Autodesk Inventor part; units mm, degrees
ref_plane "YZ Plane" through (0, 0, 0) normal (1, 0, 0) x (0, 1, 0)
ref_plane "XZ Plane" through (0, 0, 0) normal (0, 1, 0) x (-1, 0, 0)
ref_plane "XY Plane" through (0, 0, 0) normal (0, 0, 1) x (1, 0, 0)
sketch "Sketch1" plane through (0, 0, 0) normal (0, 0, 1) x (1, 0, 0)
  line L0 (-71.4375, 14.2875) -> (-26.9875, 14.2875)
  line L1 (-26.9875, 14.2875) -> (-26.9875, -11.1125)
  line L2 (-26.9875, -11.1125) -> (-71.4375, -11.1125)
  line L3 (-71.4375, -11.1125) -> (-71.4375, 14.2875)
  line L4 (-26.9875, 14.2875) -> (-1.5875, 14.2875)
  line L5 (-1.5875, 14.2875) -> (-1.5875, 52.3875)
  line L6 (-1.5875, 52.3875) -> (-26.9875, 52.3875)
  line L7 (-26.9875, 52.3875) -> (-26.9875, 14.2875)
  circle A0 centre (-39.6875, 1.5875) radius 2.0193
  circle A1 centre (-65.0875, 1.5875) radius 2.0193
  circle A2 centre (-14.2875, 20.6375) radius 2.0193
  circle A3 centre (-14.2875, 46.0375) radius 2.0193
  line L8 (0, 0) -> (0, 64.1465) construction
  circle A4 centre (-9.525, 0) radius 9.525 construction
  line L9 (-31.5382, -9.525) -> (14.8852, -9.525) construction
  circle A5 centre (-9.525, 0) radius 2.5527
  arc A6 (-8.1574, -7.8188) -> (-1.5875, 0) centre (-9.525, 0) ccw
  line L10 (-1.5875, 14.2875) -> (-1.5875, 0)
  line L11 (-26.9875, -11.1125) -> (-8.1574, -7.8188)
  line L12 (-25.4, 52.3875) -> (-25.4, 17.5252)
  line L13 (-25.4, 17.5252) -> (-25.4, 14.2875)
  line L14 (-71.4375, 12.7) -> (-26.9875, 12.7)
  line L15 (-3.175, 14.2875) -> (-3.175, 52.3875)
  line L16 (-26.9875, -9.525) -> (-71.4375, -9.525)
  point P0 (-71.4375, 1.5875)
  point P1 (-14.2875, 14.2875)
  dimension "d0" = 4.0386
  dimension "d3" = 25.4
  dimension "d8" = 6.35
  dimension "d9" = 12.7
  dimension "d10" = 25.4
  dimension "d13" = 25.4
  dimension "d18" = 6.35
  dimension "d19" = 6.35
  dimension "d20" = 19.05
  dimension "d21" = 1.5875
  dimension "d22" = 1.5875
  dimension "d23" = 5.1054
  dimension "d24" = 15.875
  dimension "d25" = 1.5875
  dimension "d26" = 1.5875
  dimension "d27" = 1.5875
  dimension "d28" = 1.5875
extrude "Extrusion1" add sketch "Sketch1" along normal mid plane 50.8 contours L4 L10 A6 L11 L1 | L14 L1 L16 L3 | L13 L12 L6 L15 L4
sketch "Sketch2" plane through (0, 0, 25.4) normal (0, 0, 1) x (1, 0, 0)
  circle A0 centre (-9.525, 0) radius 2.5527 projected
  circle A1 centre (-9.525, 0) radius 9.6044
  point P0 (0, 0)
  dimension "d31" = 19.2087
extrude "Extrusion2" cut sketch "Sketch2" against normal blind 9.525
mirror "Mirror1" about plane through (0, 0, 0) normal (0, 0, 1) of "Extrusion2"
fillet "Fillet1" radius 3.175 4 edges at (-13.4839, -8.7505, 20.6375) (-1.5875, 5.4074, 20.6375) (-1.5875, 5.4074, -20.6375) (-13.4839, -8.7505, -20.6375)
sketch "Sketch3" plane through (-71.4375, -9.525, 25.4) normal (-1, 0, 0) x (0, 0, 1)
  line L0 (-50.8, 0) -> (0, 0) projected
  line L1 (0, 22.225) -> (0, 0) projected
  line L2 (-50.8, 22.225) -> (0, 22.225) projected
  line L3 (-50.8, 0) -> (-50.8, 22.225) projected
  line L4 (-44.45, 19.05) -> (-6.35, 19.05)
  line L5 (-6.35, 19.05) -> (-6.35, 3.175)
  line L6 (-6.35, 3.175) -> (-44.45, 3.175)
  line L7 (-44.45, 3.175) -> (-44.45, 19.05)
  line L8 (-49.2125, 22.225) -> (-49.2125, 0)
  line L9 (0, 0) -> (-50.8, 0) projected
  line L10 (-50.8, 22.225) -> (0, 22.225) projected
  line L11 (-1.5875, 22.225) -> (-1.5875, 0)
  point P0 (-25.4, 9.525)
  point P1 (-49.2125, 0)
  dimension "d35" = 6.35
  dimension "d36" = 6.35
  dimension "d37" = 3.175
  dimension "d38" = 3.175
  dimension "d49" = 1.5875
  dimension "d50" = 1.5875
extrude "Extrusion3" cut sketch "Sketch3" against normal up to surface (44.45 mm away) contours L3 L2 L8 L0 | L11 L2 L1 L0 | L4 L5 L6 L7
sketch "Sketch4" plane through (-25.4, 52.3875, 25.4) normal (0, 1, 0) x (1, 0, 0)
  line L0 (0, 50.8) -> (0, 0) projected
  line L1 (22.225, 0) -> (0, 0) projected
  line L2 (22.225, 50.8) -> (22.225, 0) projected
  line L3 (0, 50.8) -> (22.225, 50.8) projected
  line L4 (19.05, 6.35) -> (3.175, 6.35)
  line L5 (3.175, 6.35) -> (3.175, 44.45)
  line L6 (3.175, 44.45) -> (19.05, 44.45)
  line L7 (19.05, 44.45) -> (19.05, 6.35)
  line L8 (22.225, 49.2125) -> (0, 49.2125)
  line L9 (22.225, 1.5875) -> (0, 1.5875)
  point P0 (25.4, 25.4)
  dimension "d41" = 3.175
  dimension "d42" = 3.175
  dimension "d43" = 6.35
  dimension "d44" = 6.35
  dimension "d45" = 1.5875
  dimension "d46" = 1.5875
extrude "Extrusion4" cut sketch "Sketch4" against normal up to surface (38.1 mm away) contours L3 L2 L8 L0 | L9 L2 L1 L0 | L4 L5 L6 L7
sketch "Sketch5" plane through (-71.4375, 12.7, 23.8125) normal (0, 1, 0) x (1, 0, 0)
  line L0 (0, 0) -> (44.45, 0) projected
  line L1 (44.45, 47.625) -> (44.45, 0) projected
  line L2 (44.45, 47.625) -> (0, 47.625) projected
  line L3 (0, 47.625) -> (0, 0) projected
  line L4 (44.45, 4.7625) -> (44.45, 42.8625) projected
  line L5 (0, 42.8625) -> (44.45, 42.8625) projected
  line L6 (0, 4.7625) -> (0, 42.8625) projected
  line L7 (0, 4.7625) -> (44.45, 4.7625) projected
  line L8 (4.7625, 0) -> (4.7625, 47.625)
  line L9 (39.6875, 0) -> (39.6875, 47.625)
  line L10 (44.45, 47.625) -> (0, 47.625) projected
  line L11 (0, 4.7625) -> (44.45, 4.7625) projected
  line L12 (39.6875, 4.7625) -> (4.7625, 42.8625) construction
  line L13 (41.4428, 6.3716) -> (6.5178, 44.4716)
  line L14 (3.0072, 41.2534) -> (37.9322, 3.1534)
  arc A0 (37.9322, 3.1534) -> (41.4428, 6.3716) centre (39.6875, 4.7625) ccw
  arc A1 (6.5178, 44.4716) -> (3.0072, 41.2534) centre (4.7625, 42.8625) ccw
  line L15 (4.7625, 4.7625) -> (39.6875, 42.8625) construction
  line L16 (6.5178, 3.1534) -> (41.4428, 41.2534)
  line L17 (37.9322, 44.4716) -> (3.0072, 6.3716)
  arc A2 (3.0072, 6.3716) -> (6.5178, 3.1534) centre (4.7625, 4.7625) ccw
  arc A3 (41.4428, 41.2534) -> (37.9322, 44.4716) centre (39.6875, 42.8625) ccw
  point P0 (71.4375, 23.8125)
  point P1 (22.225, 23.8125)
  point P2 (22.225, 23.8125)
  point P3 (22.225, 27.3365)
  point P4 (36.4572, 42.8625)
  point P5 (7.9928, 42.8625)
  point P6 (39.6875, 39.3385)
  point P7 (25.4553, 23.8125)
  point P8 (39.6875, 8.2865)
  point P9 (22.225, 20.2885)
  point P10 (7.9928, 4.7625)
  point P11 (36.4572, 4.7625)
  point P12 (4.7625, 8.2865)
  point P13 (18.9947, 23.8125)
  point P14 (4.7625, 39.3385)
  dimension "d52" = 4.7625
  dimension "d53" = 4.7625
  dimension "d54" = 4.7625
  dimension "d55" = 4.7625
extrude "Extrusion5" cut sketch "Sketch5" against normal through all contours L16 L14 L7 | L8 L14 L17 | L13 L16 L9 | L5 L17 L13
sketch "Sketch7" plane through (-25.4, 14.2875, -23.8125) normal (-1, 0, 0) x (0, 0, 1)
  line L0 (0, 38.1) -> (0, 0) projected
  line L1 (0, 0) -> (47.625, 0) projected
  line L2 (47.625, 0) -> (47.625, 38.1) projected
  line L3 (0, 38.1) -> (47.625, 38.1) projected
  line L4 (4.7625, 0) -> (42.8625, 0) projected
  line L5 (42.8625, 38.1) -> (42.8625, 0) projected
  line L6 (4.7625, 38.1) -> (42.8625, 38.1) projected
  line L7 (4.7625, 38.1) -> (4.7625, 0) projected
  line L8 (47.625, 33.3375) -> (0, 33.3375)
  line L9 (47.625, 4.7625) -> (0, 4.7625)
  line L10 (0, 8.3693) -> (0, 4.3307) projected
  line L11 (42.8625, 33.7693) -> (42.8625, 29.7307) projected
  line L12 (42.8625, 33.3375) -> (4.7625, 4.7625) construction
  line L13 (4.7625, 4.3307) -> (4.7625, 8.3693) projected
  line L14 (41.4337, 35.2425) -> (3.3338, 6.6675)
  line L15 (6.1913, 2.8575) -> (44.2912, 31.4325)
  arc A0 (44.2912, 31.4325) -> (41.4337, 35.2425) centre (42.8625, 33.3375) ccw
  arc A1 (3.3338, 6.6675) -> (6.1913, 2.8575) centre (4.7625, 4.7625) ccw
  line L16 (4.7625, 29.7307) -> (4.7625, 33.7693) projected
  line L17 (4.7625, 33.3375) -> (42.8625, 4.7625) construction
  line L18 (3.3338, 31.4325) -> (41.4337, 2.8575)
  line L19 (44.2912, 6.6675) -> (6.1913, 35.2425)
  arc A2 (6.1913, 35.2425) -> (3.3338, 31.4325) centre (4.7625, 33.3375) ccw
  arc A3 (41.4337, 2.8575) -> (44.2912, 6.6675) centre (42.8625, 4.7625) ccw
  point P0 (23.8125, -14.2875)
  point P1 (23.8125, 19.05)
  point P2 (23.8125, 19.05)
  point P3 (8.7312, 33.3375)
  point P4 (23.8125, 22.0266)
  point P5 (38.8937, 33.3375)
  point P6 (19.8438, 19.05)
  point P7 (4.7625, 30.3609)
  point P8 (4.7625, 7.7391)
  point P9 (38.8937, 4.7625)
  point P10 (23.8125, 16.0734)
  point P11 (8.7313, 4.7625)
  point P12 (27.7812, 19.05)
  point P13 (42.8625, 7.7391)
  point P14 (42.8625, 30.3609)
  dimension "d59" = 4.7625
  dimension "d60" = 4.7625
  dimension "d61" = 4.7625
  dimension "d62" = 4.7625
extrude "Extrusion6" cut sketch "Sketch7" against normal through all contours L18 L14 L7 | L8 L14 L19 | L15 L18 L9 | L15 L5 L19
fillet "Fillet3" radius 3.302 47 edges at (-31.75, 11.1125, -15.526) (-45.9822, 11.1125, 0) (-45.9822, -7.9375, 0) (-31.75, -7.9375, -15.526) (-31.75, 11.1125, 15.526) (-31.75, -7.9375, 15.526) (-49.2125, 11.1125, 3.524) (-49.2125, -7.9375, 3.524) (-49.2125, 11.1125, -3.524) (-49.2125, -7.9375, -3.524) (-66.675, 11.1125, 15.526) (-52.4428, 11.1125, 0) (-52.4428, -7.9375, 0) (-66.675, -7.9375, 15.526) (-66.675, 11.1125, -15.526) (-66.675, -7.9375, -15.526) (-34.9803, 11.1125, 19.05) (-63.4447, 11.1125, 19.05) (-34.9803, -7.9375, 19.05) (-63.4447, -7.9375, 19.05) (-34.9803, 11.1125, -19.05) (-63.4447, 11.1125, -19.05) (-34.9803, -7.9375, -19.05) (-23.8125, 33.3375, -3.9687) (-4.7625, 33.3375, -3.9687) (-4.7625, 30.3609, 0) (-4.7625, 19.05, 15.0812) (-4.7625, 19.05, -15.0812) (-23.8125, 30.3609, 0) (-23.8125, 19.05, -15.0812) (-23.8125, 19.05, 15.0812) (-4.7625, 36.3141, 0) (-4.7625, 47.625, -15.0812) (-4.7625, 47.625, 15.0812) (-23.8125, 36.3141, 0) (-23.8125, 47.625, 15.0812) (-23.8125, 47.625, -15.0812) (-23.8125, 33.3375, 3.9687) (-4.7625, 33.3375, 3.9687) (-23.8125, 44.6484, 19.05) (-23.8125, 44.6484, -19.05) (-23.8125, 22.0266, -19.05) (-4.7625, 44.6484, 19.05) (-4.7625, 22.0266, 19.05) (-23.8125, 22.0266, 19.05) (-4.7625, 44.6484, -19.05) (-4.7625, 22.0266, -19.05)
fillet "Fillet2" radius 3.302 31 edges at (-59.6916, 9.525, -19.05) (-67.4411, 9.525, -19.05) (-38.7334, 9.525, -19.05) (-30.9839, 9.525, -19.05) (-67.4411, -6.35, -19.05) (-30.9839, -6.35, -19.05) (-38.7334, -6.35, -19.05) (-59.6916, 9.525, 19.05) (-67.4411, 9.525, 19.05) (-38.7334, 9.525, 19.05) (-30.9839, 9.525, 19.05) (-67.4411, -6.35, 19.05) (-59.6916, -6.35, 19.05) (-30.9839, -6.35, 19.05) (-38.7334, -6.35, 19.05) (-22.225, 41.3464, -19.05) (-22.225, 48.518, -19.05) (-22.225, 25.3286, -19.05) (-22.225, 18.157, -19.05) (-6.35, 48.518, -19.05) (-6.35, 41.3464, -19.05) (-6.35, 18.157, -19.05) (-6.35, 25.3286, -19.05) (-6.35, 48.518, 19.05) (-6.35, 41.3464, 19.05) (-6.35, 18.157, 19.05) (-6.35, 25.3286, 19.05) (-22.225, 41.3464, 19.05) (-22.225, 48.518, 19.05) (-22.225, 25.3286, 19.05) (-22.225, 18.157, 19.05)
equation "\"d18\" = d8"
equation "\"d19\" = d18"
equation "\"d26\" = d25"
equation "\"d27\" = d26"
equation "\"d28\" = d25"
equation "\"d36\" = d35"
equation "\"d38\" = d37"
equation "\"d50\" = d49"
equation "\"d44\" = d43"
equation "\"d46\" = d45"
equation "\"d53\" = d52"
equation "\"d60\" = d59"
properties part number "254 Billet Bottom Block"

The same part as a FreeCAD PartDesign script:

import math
import FreeCAD as App
import Part
import Sketcher

V = App.Vector
Q = App.Units.Quantity


def edges_at(feature, points):
    """Names of the edges that pass closest to the given points."""
    edges = feature.Shape.Edges
    near = lambda p: min(range(len(edges)), key=lambda i: edges[i].distToShape(Part.Vertex(*p))[0])
    return sorted({f"Edge{near(p) + 1}" for p in points})

doc = App.newDocument("Part")
body = doc.addObject("PartDesign::Body", "Body")

# Sketch on XY plane
sketch1 = body.newObject("Sketcher::SketchObject", "Sketch")
sketch1.AttachmentSupport = (doc.getObject("XY_Plane"), [""])
sketch1.MapMode = "FlatFace"
sketch1.addGeometry(Part.LineSegment(V(-25.4, 14.3, 0), V(-27, 14.3, 0)), False)
sketch1.addGeometry(Part.LineSegment(V(-27, 14.3, 0), V(-27, 12.7, 0)), False)
sketch1.addGeometry(Part.LineSegment(V(-27, 12.7, 0), V(-71.4, 12.7, 0)), False)
sketch1.addGeometry(Part.LineSegment(V(-71.4, 12.7, 0), V(-71.4, -9.5, 0)), False)
sketch1.addGeometry(Part.LineSegment(V(-71.4, -9.5, 0), V(-27, -9.5, 0)), False)
sketch1.addGeometry(Part.LineSegment(V(-27, -9.5, 0), V(-27, -11.1, 0)), False)
sketch1.addGeometry(Part.LineSegment(V(-27, -11.1, 0), V(-8.2, -7.8, 0)), False)
sketch1.addGeometry(Part.ArcOfCircle(Part.Circle(V(-9.5, 0, 0), V(0, 0, 1), 7.9), math.radians(-80), math.radians(0)), False)
sketch1.addGeometry(Part.LineSegment(V(-1.6, 0, 0), V(-1.6, 14.3, 0)), False)
sketch1.addGeometry(Part.LineSegment(V(-1.6, 14.3, 0), V(-3.2, 14.3, 0)), False)
sketch1.addGeometry(Part.LineSegment(V(-3.2, 14.3, 0), V(-3.2, 52.4, 0)), False)
sketch1.addGeometry(Part.LineSegment(V(-3.2, 52.4, 0), V(-25.4, 52.4, 0)), False)
sketch1.addGeometry(Part.LineSegment(V(-25.4, 52.4, 0), V(-25.4, 14.3, 0)), False)
sketch1.addGeometry(Part.Circle(V(-9.5, 0, 0), V(0, 0, 1), 2.6), False)
sketch1.addGeometry(Part.Circle(V(-14.3, 46, 0), V(0, 0, 1), 2), False)
sketch1.addGeometry(Part.Circle(V(-14.3, 20.6, 0), V(0, 0, 1), 2), False)
sketch1.addGeometry(Part.Circle(V(-39.7, 1.6, 0), V(0, 0, 1), 2), False)
sketch1.addGeometry(Part.Circle(V(-65.1, 1.6, 0), V(0, 0, 1), 2), False)
sketch1.addConstraint(Sketcher.Constraint("Coincident", 0, 2, 1, 1))
sketch1.addConstraint(Sketcher.Constraint("Coincident", 1, 2, 2, 1))
sketch1.addConstraint(Sketcher.Constraint("Coincident", 2, 2, 3, 1))
sketch1.addConstraint(Sketcher.Constraint("Coincident", 3, 2, 4, 1))
sketch1.addConstraint(Sketcher.Constraint("Coincident", 4, 2, 5, 1))
sketch1.addConstraint(Sketcher.Constraint("Coincident", 5, 2, 6, 1))
sketch1.addConstraint(Sketcher.Constraint("Tangent", 6, 2, 7, 1))
sketch1.addConstraint(Sketcher.Constraint("Tangent", 7, 2, 8, 1))
sketch1.addConstraint(Sketcher.Constraint("Coincident", 8, 2, 9, 1))
sketch1.addConstraint(Sketcher.Constraint("Coincident", 9, 2, 10, 1))
sketch1.addConstraint(Sketcher.Constraint("Coincident", 10, 2, 11, 1))
sketch1.addConstraint(Sketcher.Constraint("Coincident", 11, 2, 12, 1))
sketch1.addConstraint(Sketcher.Constraint("Coincident", 12, 2, 0, 1))
sketch1.addConstraint(Sketcher.Constraint("Horizontal", 0))
sketch1.addConstraint(Sketcher.Constraint("Vertical", 1))
sketch1.addConstraint(Sketcher.Constraint("Horizontal", 2))
sketch1.addConstraint(Sketcher.Constraint("Vertical", 3))
sketch1.addConstraint(Sketcher.Constraint("Horizontal", 4))
sketch1.addConstraint(Sketcher.Constraint("Vertical", 5))
sketch1.addConstraint(Sketcher.Constraint("Vertical", 8))
sketch1.addConstraint(Sketcher.Constraint("Horizontal", 9))
sketch1.addConstraint(Sketcher.Constraint("Vertical", 10))
sketch1.addConstraint(Sketcher.Constraint("Horizontal", 11))
sketch1.addConstraint(Sketcher.Constraint("Vertical", 12))
sketch1.addConstraint(Sketcher.Constraint("Coincident", 13, 3, 7, 3))
sketch1.addConstraint(Sketcher.Constraint("Equal", 14, 15))
sketch1.addConstraint(Sketcher.Constraint("Equal", 15, 16))
sketch1.addConstraint(Sketcher.Constraint("Equal", 16, 17))
sketch1.addConstraint(Sketcher.Constraint("PointOnObject", 7, 3, -1))
sketch1.addConstraint(Sketcher.Constraint("Horizontal", 16, 3, 17, 3))
sketch1.addConstraint(Sketcher.Constraint("Horizontal", 0, 2, 8, 2))
sketch1.addConstraint(Sketcher.Constraint("Vertical", 14, 3, 15, 3))
sketch1.addConstraint(Sketcher.Constraint("Vertical", 1, 2, 4, 2))
sketch1.addConstraint(Sketcher.Constraint("Equal", 0, 9))
sketch1.addConstraint(Sketcher.Constraint("Equal", 9, 1))
sketch1.addConstraint(Sketcher.Constraint("Equal", 11, 3))
sketch1.addConstraint(Sketcher.Constraint("Equal", 1, 5))
sketch1.addConstraint(Sketcher.Constraint("Diameter", 13, Q("0.201 in")))
sketch1.addConstraint(Sketcher.Constraint("Diameter", 14, Q("0.159 in")))
sketch1.addConstraint(Sketcher.Constraint("DistanceX", 11, 2, -1, 1, Q("1 in")))
sketch1.addConstraint(Sketcher.Constraint("Radius", 7, Q("0.3125 in")))
sketch1.addConstraint(Sketcher.Constraint("DistanceY", 15, 3, 14, 3, Q("1 in")))
sketch1.addConstraint(Sketcher.Constraint("DistanceX", 16, 3, 15, 3, Q("1 in")))
sketch1.addConstraint(Sketcher.Constraint("DistanceX", 17, 3, 16, 3, Q("1 in")))
sketch1.addConstraint(Sketcher.Constraint("DistanceX", 4, 2, 7, 2, Q("1 in")))
sketch1.addConstraint(Sketcher.Constraint("DistanceY", -1, 1, 1, 2, Q("0.5 in")))
sketch1.addConstraint(Sketcher.Constraint("DistanceX", 0, 2, 15, 3, Q("0.5 in")))
sketch1.addConstraint(Sketcher.Constraint("DistanceY", 16, 3, 0, 2, Q("0.5 in")))
sketch1.addConstraint(Sketcher.Constraint("DistanceX", 0, 2, 0, 1, Q("0.0625 in")))
sketch1.addConstraint(Sketcher.Constraint("DistanceY", 16, 3, 15, 3, Q("0.75 in")))
sketch1.addConstraint(Sketcher.Constraint("DistanceX", 2, 2, 17, 3, Q("0.25 in")))
sketch1.addConstraint(Sketcher.Constraint("DistanceY", 14, 3, 10, 2, Q("0.25 in")))
pad1 = body.newObject("PartDesign::Pad", "Pad")
pad1.Profile = sketch1
pad1.Length = Q("2 in")
pad1.Midplane = True

# Sketch on XY plane
sketch2 = body.newObject("Sketcher::SketchObject", "Sketch001")
sketch2.AttachmentSupport = (doc.getObject("XY_Plane"), [""])
sketch2.MapMode = "FlatFace"
sketch2.AttachmentOffset = App.Placement(V(0, 0, 1 * 25.4), App.Rotation())
sketch2.addGeometry(Part.Circle(V(-9.5, 0, 0), V(0, 0, 1), 9.6), False)
sketch2.addGeometry(Part.Circle(V(-9.5, 0, 0), V(0, 0, 1), 2.6), False)
sketch2.addConstraint(Sketcher.Constraint("Coincident", 1, 3, 0, 3))
sketch2.addConstraint(Sketcher.Constraint("PointOnObject", 0, 3, -1))
sketch2.addConstraint(Sketcher.Constraint("Diameter", 0, 19.2088))
sketch2.addConstraint(Sketcher.Constraint("Diameter", 1, Q("0.201 in")))
sketch2.addConstraint(Sketcher.Constraint("DistanceX", 0, 3, -1, 1, Q("0.375 in")))
pocket1 = body.newObject("PartDesign::Pocket", "Pocket")
pocket1.Profile = sketch2
pocket1.Length = Q("0.375 in")
doc.recompute()

mirrored = body.newObject("PartDesign::Mirrored", "Mirrored")
mirrored.Originals = [pocket1]
mirrored.MirrorPlane = (doc.getObject("XY_Plane"), [""])
body.Tip = mirrored
doc.recompute()

fillet = body.newObject("PartDesign::Fillet", "Fillet")
fillet.Base = (mirrored, edges_at(mirrored, [
    (-13.484, -8.751, 20.637),
    (-1.587, 5.407, 20.637),
    (-1.587, 5.407, -20.637),
    (-13.484, -8.751, -20.637),
]))
fillet.Radius = Q("0.125 in")

# Sketch on YZ plane
sketch3 = body.newObject("Sketcher::SketchObject", "Sketch002")
sketch3.AttachmentSupport = (doc.getObject("YZ_Plane"), [""])
sketch3.MapMode = "FlatFace"
sketch3.AttachmentOffset = App.Placement(V(0, 0, -2.8125 * 25.4), App.Rotation())
sketch3.addGeometry(Part.LineSegment(V(12.7, -25.4, 0), V(-9.5, -25.4, 0)), False)
sketch3.addGeometry(Part.LineSegment(V(-9.5, -25.4, 0), V(-9.5, -23.8, 0)), False)
sketch3.addGeometry(Part.LineSegment(V(-9.5, -23.8, 0), V(12.7, -23.8, 0)), False)
sketch3.addGeometry(Part.LineSegment(V(12.7, -23.8, 0), V(12.7, -25.4, 0)), False)
sketch3.addGeometry(Part.LineSegment(V(12.7, 23.8, 0), V(-9.5, 23.8, 0)), False)
sketch3.addGeometry(Part.LineSegment(V(-9.5, 23.8, 0), V(-9.5, 25.4, 0)), False)
sketch3.addGeometry(Part.LineSegment(V(-9.5, 25.4, 0), V(12.7, 25.4, 0)), False)
sketch3.addGeometry(Part.LineSegment(V(12.7, 25.4, 0), V(12.7, 23.8, 0)), False)
sketch3.addGeometry(Part.LineSegment(V(9.5, 19.1, 0), V(9.5, -19.1, 0)), False)
sketch3.addGeometry(Part.LineSegment(V(9.5, -19.1, 0), V(-6.3, -19.1, 0)), False)
sketch3.addGeometry(Part.LineSegment(V(-6.3, -19.1, 0), V(-6.3, 19.1, 0)), False)
sketch3.addGeometry(Part.LineSegment(V(-6.3, 19.1, 0), V(9.5, 19.1, 0)), False)
sketch3.addConstraint(Sketcher.Constraint("Coincident", 0, 2, 1, 1))
sketch3.addConstraint(Sketcher.Constraint("Coincident", 1, 2, 2, 1))
sketch3.addConstraint(Sketcher.Constraint("Coincident", 2, 2, 3, 1))
sketch3.addConstraint(Sketcher.Constraint("Coincident", 3, 2, 0, 1))
sketch3.addConstraint(Sketcher.Constraint("Coincident", 4, 2, 5, 1))
sketch3.addConstraint(Sketcher.Constraint("Coincident", 5, 2, 6, 1))
sketch3.addConstraint(Sketcher.Constraint("Coincident", 6, 2, 7, 1))
sketch3.addConstraint(Sketcher.Constraint("Coincident", 7, 2, 4, 1))
sketch3.addConstraint(Sketcher.Constraint("Coincident", 8, 2, 9, 1))
sketch3.addConstraint(Sketcher.Constraint("Coincident", 9, 2, 10, 1))
sketch3.addConstraint(Sketcher.Constraint("Coincident", 10, 2, 11, 1))
sketch3.addConstraint(Sketcher.Constraint("Coincident", 11, 2, 8, 1))
sketch3.addConstraint(Sketcher.Constraint("Horizontal", 0))
sketch3.addConstraint(Sketcher.Constraint("Vertical", 1))
sketch3.addConstraint(Sketcher.Constraint("Horizontal", 2))
sketch3.addConstraint(Sketcher.Constraint("Vertical", 3))
sketch3.addConstraint(Sketcher.Constraint("Horizontal", 4))
sketch3.addConstraint(Sketcher.Constraint("Vertical", 5))
sketch3.addConstraint(Sketcher.Constraint("Horizontal", 6))
sketch3.addConstraint(Sketcher.Constraint("Vertical", 7))
sketch3.addConstraint(Sketcher.Constraint("Vertical", 8))
sketch3.addConstraint(Sketcher.Constraint("Horizontal", 9))
sketch3.addConstraint(Sketcher.Constraint("Vertical", 10))
sketch3.addConstraint(Sketcher.Constraint("Horizontal", 11))
sketch3.addConstraint(Sketcher.Constraint("Symmetric", 1, 2, 4, 2, -1))
sketch3.addConstraint(Sketcher.Constraint("Symmetric", 3, 2, 6, 2, -1))
sketch3.addConstraint(Sketcher.Constraint("DistanceY", 1, 1, 1, 2, Q("0.0625 in")))
sketch3.addConstraint(Sketcher.Constraint("DistanceX", 9, 2, -1, 1, Q("0.25 in")))
sketch3.addConstraint(Sketcher.Constraint("DistanceY", 3, 2, 8, 2, Q("0.25 in")))
sketch3.addConstraint(Sketcher.Constraint("DistanceY", 10, 2, 5, 2, Q("0.25 in")))
sketch3.addConstraint(Sketcher.Constraint("DistanceY", 8, 2, 8, 1, Q("1.5 in")))
sketch3.addConstraint(Sketcher.Constraint("DistanceX", 8, 2, 2, 2, Q("0.125 in")))
sketch3.addConstraint(Sketcher.Constraint("DistanceX", 1, 2, 9, 2, Q("0.125 in")))
sketch3.addConstraint(Sketcher.Constraint("DistanceX", -1, 1, 2, 2, Q("0.5 in")))
pocket2 = body.newObject("PartDesign::Pocket", "Pocket001")
pocket2.Profile = sketch3
pocket2.Length = Q("1.75 in")
pocket2.Reversed = True

# Sketch on XZ plane
sketch4 = body.newObject("Sketcher::SketchObject", "Sketch003")
sketch4.AttachmentSupport = (doc.getObject("XZ_Plane"), [""])
sketch4.MapMode = "FlatFace"
sketch4.AttachmentOffset = App.Placement(V(0, 0, -2.0625 * 25.4), App.Rotation())
sketch4.addGeometry(Part.LineSegment(V(-3.2, -25.4, 0), V(-25.4, -25.4, 0)), False)
sketch4.addGeometry(Part.LineSegment(V(-25.4, -25.4, 0), V(-25.4, -23.8, 0)), False)
sketch4.addGeometry(Part.LineSegment(V(-25.4, -23.8, 0), V(-3.2, -23.8, 0)), False)
sketch4.addGeometry(Part.LineSegment(V(-3.2, -23.8, 0), V(-3.2, -25.4, 0)), False)
sketch4.addGeometry(Part.LineSegment(V(-3.2, 23.8, 0), V(-25.4, 23.8, 0)), False)
sketch4.addGeometry(Part.LineSegment(V(-25.4, 23.8, 0), V(-25.4, 25.4, 0)), False)
sketch4.addGeometry(Part.LineSegment(V(-25.4, 25.4, 0), V(-3.2, 25.4, 0)), False)
sketch4.addGeometry(Part.LineSegment(V(-3.2, 25.4, 0), V(-3.2, 23.8, 0)), False)
sketch4.addGeometry(Part.LineSegment(V(-22.2, 19.1, 0), V(-6.3, 19.1, 0)), False)
sketch4.addGeometry(Part.LineSegment(V(-6.3, 19.1, 0), V(-6.3, -19.1, 0)), False)
sketch4.addGeometry(Part.LineSegment(V(-6.3, -19.1, 0), V(-22.2, -19.1, 0)), False)
sketch4.addGeometry(Part.LineSegment(V(-22.2, -19.1, 0), V(-22.2, 19.1, 0)), False)
sketch4.addConstraint(Sketcher.Constraint("Coincident", 0, 2, 1, 1))
sketch4.addConstraint(Sketcher.Constraint("Coincident", 1, 2, 2, 1))
sketch4.addConstraint(Sketcher.Constraint("Coincident", 2, 2, 3, 1))
sketch4.addConstraint(Sketcher.Constraint("Coincident", 3, 2, 0, 1))
sketch4.addConstraint(Sketcher.Constraint("Coincident", 4, 2, 5, 1))
sketch4.addConstraint(Sketcher.Constraint("Coincident", 5, 2, 6, 1))
sketch4.addConstraint(Sketcher.Constraint("Coincident", 6, 2, 7, 1))
sketch4.addConstraint(Sketcher.Constraint("Coincident", 7, 2, 4, 1))
sketch4.addConstraint(Sketcher.Constraint("Coincident", 8, 2, 9, 1))
sketch4.addConstraint(Sketcher.Constraint("Coincident", 9, 2, 10, 1))
sketch4.addConstraint(Sketcher.Constraint("Coincident", 10, 2, 11, 1))
sketch4.addConstraint(Sketcher.Constraint("Coincident", 11, 2, 8, 1))
sketch4.addConstraint(Sketcher.Constraint("Horizontal", 0))
sketch4.addConstraint(Sketcher.Constraint("Vertical", 1))
sketch4.addConstraint(Sketcher.Constraint("Horizontal", 2))
sketch4.addConstraint(Sketcher.Constraint("Vertical", 3))
sketch4.addConstraint(Sketcher.Constraint("Horizontal", 4))
sketch4.addConstraint(Sketcher.Constraint("Vertical", 5))
sketch4.addConstraint(Sketcher.Constraint("Horizontal", 6))
sketch4.addConstraint(Sketcher.Constraint("Vertical", 7))
sketch4.addConstraint(Sketcher.Constraint("Horizontal", 8))
sketch4.addConstraint(Sketcher.Constraint("Vertical", 9))
sketch4.addConstraint(Sketcher.Constraint("Horizontal", 10))
sketch4.addConstraint(Sketcher.Constraint("Vertical", 11))
sketch4.addConstraint(Sketcher.Constraint("Symmetric", 1, 2, 4, 2, -1))
sketch4.addConstraint(Sketcher.Constraint("Symmetric", 3, 2, 6, 2, -1))
sketch4.addConstraint(Sketcher.Constraint("DistanceY", 1, 1, 1, 2, Q("0.0625 in")))
sketch4.addConstraint(Sketcher.Constraint("DistanceX", 8, 2, -1, 1, Q("0.25 in")))
sketch4.addConstraint(Sketcher.Constraint("DistanceY", 8, 2, 6, 2, Q("0.25 in")))
sketch4.addConstraint(Sketcher.Constraint("DistanceY", 3, 2, 9, 2, Q("0.25 in")))
sketch4.addConstraint(Sketcher.Constraint("DistanceY", 9, 2, 9, 1, Q("1.5 in")))
sketch4.addConstraint(Sketcher.Constraint("DistanceX", 2, 2, -1, 1, Q("0.125 in")))
sketch4.addConstraint(Sketcher.Constraint("DistanceX", 0, 2, -1, 1, Q("1 in")))
sketch4.addConstraint(Sketcher.Constraint("DistanceX", 1, 2, 10, 2, Q("0.125 in")))
pocket3 = body.newObject("PartDesign::Pocket", "Pocket002")
pocket3.Profile = sketch4
pocket3.Length = Q("1.5 in")
pocket3.Reversed = True

# Sketch on XZ plane
sketch5 = body.newObject("Sketcher::SketchObject", "Sketch004")
sketch5.AttachmentSupport = (doc.getObject("XZ_Plane"), [""])
sketch5.MapMode = "FlatFace"
sketch5.AttachmentOffset = App.Placement(V(0, 0, -0.5 * 25.4), App.Rotation())
sketch5.addGeometry(Part.LineSegment(V(-49, 4, 0), V(-63, 19, 0)), False)
sketch5.addGeometry(Part.LineSegment(V(-63, 19, 0), V(-35, 19, 0)), False)
sketch5.addGeometry(Part.LineSegment(V(-35, 19, 0), V(-49, 4, 0)), False)
sketch5.addGeometry(Part.LineSegment(V(-67, -16, 0), V(-67, 16, 0)), False)
sketch5.addGeometry(Part.LineSegment(V(-67, 16, 0), V(-52, 0, 0)), False)
sketch5.addGeometry(Part.LineSegment(V(-52, 0, 0), V(-67, -16, 0)), False)
sketch5.addGeometry(Part.LineSegment(V(-46, 0, 0), V(-32, 16, 0)), False)
sketch5.addGeometry(Part.LineSegment(V(-32, 16, 0), V(-32, -16, 0)), False)
sketch5.addGeometry(Part.LineSegment(V(-32, -16, 0), V(-46, 0, 0)), False)
sketch5.addGeometry(Part.LineSegment(V(-35, -19, 0), V(-63, -19, 0)), False)
sketch5.addGeometry(Part.LineSegment(V(-63, -19, 0), V(-49, -4, 0)), False)
sketch5.addGeometry(Part.LineSegment(V(-49, -4, 0), V(-35, -19, 0)), False)
sketch5.addConstraint(Sketcher.Constraint("Coincident", 0, 2, 1, 1))
sketch5.addConstraint(Sketcher.Constraint("Coincident", 1, 2, 2, 1))
sketch5.addConstraint(Sketcher.Constraint("Coincident", 2, 2, 0, 1))
sketch5.addConstraint(Sketcher.Constraint("Coincident", 3, 2, 4, 1))
sketch5.addConstraint(Sketcher.Constraint("Coincident", 4, 2, 5, 1))
sketch5.addConstraint(Sketcher.Constraint("Coincident", 5, 2, 3, 1))
sketch5.addConstraint(Sketcher.Constraint("Coincident", 6, 2, 7, 1))
sketch5.addConstraint(Sketcher.Constraint("Coincident", 7, 2, 8, 1))
sketch5.addConstraint(Sketcher.Constraint("Coincident", 8, 2, 6, 1))
sketch5.addConstraint(Sketcher.Constraint("Coincident", 9, 2, 10, 1))
sketch5.addConstraint(Sketcher.Constraint("Coincident", 10, 2, 11, 1))
sketch5.addConstraint(Sketcher.Constraint("Coincident", 11, 2, 9, 1))
sketch5.addConstraint(Sketcher.Constraint("Horizontal", 1))
sketch5.addConstraint(Sketcher.Constraint("Vertical", 3))
sketch5.addConstraint(Sketcher.Constraint("Vertical", 7))
sketch5.addConstraint(Sketcher.Constraint("Horizontal", 9))
sketch5.addConstraint(Sketcher.Constraint("Symmetric", 0, 2, 9, 2, -1))
sketch5.addConstraint(Sketcher.Constraint("Symmetric", 2, 2, 10, 2, -1))
sketch5.addConstraint(Sketcher.Constraint("PointOnObject", 4, 2, -1))
sketch5.addConstraint(Sketcher.Constraint("PointOnObject", 8, 2, -1))
sketch5.addConstraint(Sketcher.Constraint("Parallel", 0, 4))
sketch5.addConstraint(Sketcher.Constraint("Parallel", 2, 5))
sketch5.addConstraint(Sketcher.Constraint("Parallel", 5, 6))
sketch5.addConstraint(Sketcher.Constraint("Parallel", 4, 8))
sketch5.addConstraint(Sketcher.Constraint("Parallel", 6, 10))
sketch5.addConstraint(Sketcher.Constraint("Parallel", 8, 11))
sketch5.addConstraint(Sketcher.Constraint("Horizontal", 3, 2, 6, 2))
sketch5.addConstraint(Sketcher.Constraint("Equal", 2, 4))
sketch5.addConstraint(Sketcher.Constraint("DistanceY", -1, 1, 0, 2, Q("0.75 in")))
sketch5.addConstraint(Sketcher.Constraint("DistanceX", 6, 2, -1, 1, Q("1.25 in")))
sketch5.addConstraint(Sketcher.Constraint("Angle", 0, Q("132.5104 deg")))
sketch5.addConstraint(Sketcher.Constraint("DistanceX", 2, 2, -1, 1, Q("1.9375 in")))
sketch5.addConstraint(Sketcher.Constraint("DistanceX", 3, 2, -1, 1, Q("2.625 in")))
sketch5.addConstraint(Sketcher.Constraint("DistanceX", 1, 1, 1, 2, 28.4644))
pocket4 = body.newObject("PartDesign::Pocket", "Pocket003")
pocket4.Profile = sketch5
pocket4.Type = "ThroughAll"
pocket4.Reversed = True

# Sketch on YZ plane
sketch6 = body.newObject("Sketcher::SketchObject", "Sketch005")
sketch6.AttachmentSupport = (doc.getObject("YZ_Plane"), [""])
sketch6.MapMode = "FlatFace"
sketch6.AttachmentOffset = App.Placement(V(0, 0, -1 * 25.4), App.Rotation())
sketch6.addGeometry(Part.LineSegment(V(33, -4, 0), V(45, -19, 0)), False)
sketch6.addGeometry(Part.LineSegment(V(45, -19, 0), V(22, -19, 0)), False)
sketch6.addGeometry(Part.LineSegment(V(22, -19, 0), V(33, -4, 0)), False)
sketch6.addGeometry(Part.LineSegment(V(48, 15, 0), V(48, -15, 0)), False)
sketch6.addGeometry(Part.LineSegment(V(48, -15, 0), V(36, 0, 0)), False)
sketch6.addGeometry(Part.LineSegment(V(36, 0, 0), V(48, 15, 0)), False)
sketch6.addGeometry(Part.LineSegment(V(30, 0, 0), V(19, -15, 0)), False)
sketch6.addGeometry(Part.LineSegment(V(19, -15, 0), V(19, 15, 0)), False)
sketch6.addGeometry(Part.LineSegment(V(19, 15, 0), V(30, 0, 0)), False)
sketch6.addGeometry(Part.LineSegment(V(45, 19, 0), V(33, 4, 0)), False)
sketch6.addGeometry(Part.LineSegment(V(33, 4, 0), V(22, 19, 0)), False)
sketch6.addGeometry(Part.LineSegment(V(22, 19, 0), V(45, 19, 0)), False)
sketch6.addConstraint(Sketcher.Constraint("Coincident", 0, 2, 1, 1))
sketch6.addConstraint(Sketcher.Constraint("Coincident", 1, 2, 2, 1))
sketch6.addConstraint(Sketcher.Constraint("Coincident", 2, 2, 0, 1))
sketch6.addConstraint(Sketcher.Constraint("Coincident", 3, 2, 4, 1))
sketch6.addConstraint(Sketcher.Constraint("Coincident", 4, 2, 5, 1))
sketch6.addConstraint(Sketcher.Constraint("Coincident", 5, 2, 3, 1))
sketch6.addConstraint(Sketcher.Constraint("Coincident", 6, 2, 7, 1))
sketch6.addConstraint(Sketcher.Constraint("Coincident", 7, 2, 8, 1))
sketch6.addConstraint(Sketcher.Constraint("Coincident", 8, 2, 6, 1))
sketch6.addConstraint(Sketcher.Constraint("Coincident", 9, 2, 10, 1))
sketch6.addConstraint(Sketcher.Constraint("Coincident", 10, 2, 11, 1))
sketch6.addConstraint(Sketcher.Constraint("Coincident", 11, 2, 9, 1))
sketch6.addConstraint(Sketcher.Constraint("Horizontal", 1))
sketch6.addConstraint(Sketcher.Constraint("Vertical", 3))
sketch6.addConstraint(Sketcher.Constraint("Vertical", 7))
sketch6.addConstraint(Sketcher.Constraint("Horizontal", 11))
sketch6.addConstraint(Sketcher.Constraint("Symmetric", 2, 2, 9, 2, -1))
sketch6.addConstraint(Sketcher.Constraint("Symmetric", 1, 2, 10, 2, -1))
sketch6.addConstraint(Sketcher.Constraint("PointOnObject", 4, 2, -1))
sketch6.addConstraint(Sketcher.Constraint("PointOnObject", 8, 2, -1))
sketch6.addConstraint(Sketcher.Constraint("Parallel", 0, 4))
sketch6.addConstraint(Sketcher.Constraint("Parallel", 2, 5))
sketch6.addConstraint(Sketcher.Constraint("Parallel", 5, 6))
sketch6.addConstraint(Sketcher.Constraint("Parallel", 4, 8))
sketch6.addConstraint(Sketcher.Constraint("Parallel", 6, 9))
sketch6.addConstraint(Sketcher.Constraint("Parallel", 8, 10))
sketch6.addConstraint(Sketcher.Constraint("Horizontal", 3, 2, 6, 2))
sketch6.addConstraint(Sketcher.Constraint("Equal", 2, 4))
sketch6.addConstraint(Sketcher.Constraint("DistanceX", 1, 2, 1, 1, Q("0.8906299 in")))
sketch6.addConstraint(Sketcher.Constraint("DistanceY", 3, 2, 3, 1, Q("1.1875 in")))
sketch6.addConstraint(Sketcher.Constraint("DistanceY", 0, 2, -1, 1, Q("0.75 in")))
sketch6.addConstraint(Sketcher.Constraint("DistanceX", -1, 1, 6, 2, Q("0.75 in")))
sketch6.addConstraint(Sketcher.Constraint("DistanceX", -1, 1, 2, 2, Q("1.3125 in")))
sketch6.addConstraint(Sketcher.Constraint("DistanceX", -1, 1, 3, 2, Q("1.875 in")))
pocket5 = body.newObject("PartDesign::Pocket", "Pocket004")
pocket5.Profile = sketch6
pocket5.Type = "ThroughAll"
pocket5.Reversed = True
doc.recompute()

fillet2 = body.newObject("PartDesign::Fillet", "Fillet001")
fillet2.Base = (pocket5, edges_at(pocket5, [
    (-31.75, 11.113, -15.526),
    (-45.982, 11.113, 0),
    (-45.982, -7.938, 0),
    (-31.75, -7.938, -15.526),
    (-31.75, 11.113, 15.526),
    (-31.75, -7.938, 15.526),
    (-49.212, 11.113, 3.524),
    (-49.212, -7.938, 3.524),
    (-49.212, 11.113, -3.524),
    (-49.212, -7.938, -3.524),
    (-66.675, 11.113, 15.526),
    (-52.443, 11.113, 0),
    (-52.443, -7.938, 0),
    (-66.675, -7.938, 15.526),
    (-66.675, 11.113, -15.526),
    (-66.675, -7.938, -15.526),
    (-34.98, 11.113, 19.05),
    (-63.445, 11.113, 19.05),
    (-34.98, -7.938, 19.05),
    (-63.445, -7.938, 19.05),
    (-34.98, 11.113, -19.05),
    (-63.445, 11.113, -19.05),
    (-34.98, -7.938, -19.05),
    (-23.812, 33.337, -3.969),
    (-4.763, 33.337, -3.969),
    (-4.763, 30.361, 0),
    (-4.763, 19.05, 15.081),
    (-4.763, 19.05, -15.081),
    (-23.812, 30.361, 0),
    (-23.812, 19.05, -15.081),
    (-23.812, 19.05, 15.081),
    (-4.763, 36.314, 0),
    (-4.763, 47.625, -15.081),
    (-4.763, 47.625, 15.081),
    (-23.812, 36.314, 0),
    (-23.812, 47.625, 15.081),
    (-23.812, 47.625, -15.081),
    (-23.812, 33.337, 3.969),
    (-4.763, 33.337, 3.969),
    (-23.812, 44.648, 19.05),
    (-23.812, 44.648, -19.05),
    (-23.812, 22.027, -19.05),
    (-4.763, 44.648, 19.05),
    (-4.763, 22.027, 19.05),
    (-23.812, 22.027, 19.05),
    (-4.763, 44.648, -19.05),
    (-4.763, 22.027, -19.05),
]))
fillet2.Radius = Q("0.13 in")
doc.recompute()

fillet3 = body.newObject("PartDesign::Fillet", "Fillet002")
fillet3.Base = (fillet2, edges_at(fillet2, [
    (-59.692, 9.525, -19.05),
    (-67.441, 9.525, -19.05),
    (-38.733, 9.525, -19.05),
    (-30.984, 9.525, -19.05),
    (-67.441, -6.35, -19.05),
    (-30.984, -6.35, -19.05),
    (-38.733, -6.35, -19.05),
    (-59.692, 9.525, 19.05),
    (-67.441, 9.525, 19.05),
    (-38.733, 9.525, 19.05),
    (-30.984, 9.525, 19.05),
    (-67.441, -6.35, 19.05),
    (-59.692, -6.35, 19.05),
    (-30.984, -6.35, 19.05),
    (-38.733, -6.35, 19.05),
    (-22.225, 41.346, -19.05),
    (-22.225, 48.518, -19.05),
    (-22.225, 25.329, -19.05),
    (-22.225, 18.157, -19.05),
    (-6.35, 48.518, -19.05),
    (-6.35, 41.346, -19.05),
    (-6.35, 18.157, -19.05),
    (-6.35, 25.329, -19.05),
    (-6.35, 48.518, 19.05),
    (-6.35, 41.346, 19.05),
    (-6.35, 18.157, 19.05),
    (-6.35, 25.329, 19.05),
    (-22.225, 41.346, 19.05),
    (-22.225, 48.518, 19.05),
    (-22.225, 25.329, 19.05),
    (-22.225, 18.157, 19.05),
]))
fillet3.Radius = Q("0.13 in")

doc.recompute()
